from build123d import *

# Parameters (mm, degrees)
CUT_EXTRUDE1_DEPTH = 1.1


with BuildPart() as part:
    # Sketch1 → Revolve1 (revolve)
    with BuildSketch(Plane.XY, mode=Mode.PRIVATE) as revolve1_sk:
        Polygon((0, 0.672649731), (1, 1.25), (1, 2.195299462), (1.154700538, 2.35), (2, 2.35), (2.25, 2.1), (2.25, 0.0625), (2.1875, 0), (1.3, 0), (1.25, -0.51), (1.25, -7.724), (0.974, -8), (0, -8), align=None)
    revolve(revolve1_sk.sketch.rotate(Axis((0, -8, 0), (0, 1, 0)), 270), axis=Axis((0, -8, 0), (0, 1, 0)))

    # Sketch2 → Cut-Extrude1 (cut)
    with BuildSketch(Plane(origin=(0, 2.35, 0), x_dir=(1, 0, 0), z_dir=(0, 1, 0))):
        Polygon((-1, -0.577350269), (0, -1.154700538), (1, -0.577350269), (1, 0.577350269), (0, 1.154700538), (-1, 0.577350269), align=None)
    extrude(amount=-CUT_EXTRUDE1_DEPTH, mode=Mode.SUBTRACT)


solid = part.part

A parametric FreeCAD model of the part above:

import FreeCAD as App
import Part
import Sketcher
Q = App.Units.Quantity


def add_polygon(sketch, points):
    """Adds a closed chain of lines whose ends are joined by coincident constraints."""
    first, n = sketch.GeometryCount, len(points)
    for a, b in zip(points, points[1:] + points[:1]):
        sketch.addGeometry(Part.LineSegment(App.Vector(*a, 0), App.Vector(*b, 0)), False)
    for i in range(n):
        sketch.addConstraint(Sketcher.Constraint("Coincident", first + i, 2, first + (i + 1) % n, 1))

doc = App.newDocument("Part")
body = doc.addObject("PartDesign::Body", "Body")

# Sketch on XY plane
sketch1 = body.newObject("Sketcher::SketchObject", "Sketch")
sketch1.AttachmentSupport = (doc.getObject("XY_Plane"), [""])
sketch1.MapMode = "FlatFace"
add_polygon(sketch1, [(1, 1.25), (0, 0.67), (0, -8), (0.97, -8), (1.25, -7.72), (1.25, -0.51), (1.3, 0), (2.19, 0), (2.25, 0.06), (2.25, 2.1), (2, 2.35), (1.15, 2.35), (1, 2.2)])  # lines 0-12
sketch1.addConstraint(Sketcher.Constraint("Vertical", 1))
sketch1.addConstraint(Sketcher.Constraint("Horizontal", 2))
sketch1.addConstraint(Sketcher.Constraint("Vertical", 4))
sketch1.addConstraint(Sketcher.Constraint("Horizontal", 6))
sketch1.addConstraint(Sketcher.Constraint("Vertical", 8))
sketch1.addConstraint(Sketcher.Constraint("Horizontal", 10))
sketch1.addConstraint(Sketcher.Constraint("Vertical", 12))
sketch1.addConstraint(Sketcher.Constraint("PointOnObject", 0, 2, -2))
sketch1.addConstraint(Sketcher.Constraint("PointOnObject", 5, 2, -1))
sketch1.addConstraint(Sketcher.Constraint("Parallel", 3, 7))
sketch1.addConstraint(Sketcher.Constraint("Perpendicular", 7, 9))
sketch1.addConstraint(Sketcher.Constraint("Perpendicular", 9, 11))
sketch1.addConstraint(Sketcher.Constraint("Angle", 0, Q("-150 deg")))
sketch1.addConstraint(Sketcher.Constraint("Angle", 3, Q("45 deg")))
sketch1.addConstraint(Sketcher.Constraint("DistanceY", 1, 2, -1, 1, 8.0))
sketch1.addConstraint(Sketcher.Constraint("DistanceX", -1, 1, 9, 2, 2.0))
sketch1.addConstraint(Sketcher.Constraint("DistanceX", -1, 1, 11, 2, 1.0))
sketch1.addConstraint(Sketcher.Constraint("DistanceX", 4, 2, 7, 2, 1.0))
sketch1.addConstraint(Sketcher.Constraint("DistanceX", -1, 1, 5, 2, 1.3))
sketch1.addConstraint(Sketcher.Constraint("DistanceY", -1, 1, 8, 2, 2.1))
sketch1.addConstraint(Sketcher.Constraint("DistanceY", 12, 2, 10, 2, 1.1))
sketch1.addConstraint(Sketcher.Constraint("DistanceX", 2, 1, 2, 2, 0.974))
sketch1.addConstraint(Sketcher.Constraint("DistanceY", 4, 1, 4, 2, 7.214))
sketch1.addConstraint(Sketcher.Constraint("DistanceX", -1, 1, 3, 2, 1.25))
sketch1.addConstraint(Sketcher.Constraint("DistanceX", 6, 1, 6, 2, 0.8875))
sketch1.addConstraint(Sketcher.Constraint("DistanceX", 10, 2, 10, 1, 0.845299))
revolution = body.newObject("PartDesign::Revolution", "Revolution")
revolution.Profile = sketch1
revolution.ReferenceAxis = (sketch1, ["V_Axis"])
revolution.Angle = 360

# Sketch on XZ plane
sketch2 = body.newObject("Sketcher::SketchObject", "Sketch001")
sketch2.AttachmentSupport = (doc.getObject("XZ_Plane"), [""])
sketch2.MapMode = "FlatFace"
sketch2.AttachmentOffset = App.Placement(App.Vector(0, 0, -2.35), App.Rotation())
add_polygon(sketch2, [(-1, 0.6), (0, 1.2), (1, 0.6), (1, -0.6), (0, -1.2), (-1, -0.6)])  # lines 0-5
sketch2.addConstraint(Sketcher.Constraint("Vertical", 2))
sketch2.addConstraint(Sketcher.Constraint("Vertical", 5))
sketch2.addConstraint(Sketcher.Constraint("Symmetric", 0, 2, 3, 2, -1, 1))
sketch2.addConstraint(Sketcher.Constraint("Symmetric", 1, 2, 4, 2, -1, 1))
sketch2.addConstraint(Sketcher.Constraint("PointOnObject", 0, 2, -2))
sketch2.addConstraint(Sketcher.Constraint("Parallel", 0, 3))
sketch2.addConstraint(Sketcher.Constraint("Horizontal", 2, 2, 4, 2))
sketch2.addConstraint(Sketcher.Constraint("Angle", 0, Q("30 deg")))
sketch2.addConstraint(Sketcher.Constraint("DistanceX", -1, 1, 1, 2, 1.0))
sketch2.addConstraint(Sketcher.Constraint("DistanceY", 2, 2, 2, 1, 1.154701))
pocket1 = body.newObject("PartDesign::Pocket", "Pocket")
pocket1.Profile = sketch2
pocket1.Length = 1.1
pocket1.Reversed = True

doc.recompute()
